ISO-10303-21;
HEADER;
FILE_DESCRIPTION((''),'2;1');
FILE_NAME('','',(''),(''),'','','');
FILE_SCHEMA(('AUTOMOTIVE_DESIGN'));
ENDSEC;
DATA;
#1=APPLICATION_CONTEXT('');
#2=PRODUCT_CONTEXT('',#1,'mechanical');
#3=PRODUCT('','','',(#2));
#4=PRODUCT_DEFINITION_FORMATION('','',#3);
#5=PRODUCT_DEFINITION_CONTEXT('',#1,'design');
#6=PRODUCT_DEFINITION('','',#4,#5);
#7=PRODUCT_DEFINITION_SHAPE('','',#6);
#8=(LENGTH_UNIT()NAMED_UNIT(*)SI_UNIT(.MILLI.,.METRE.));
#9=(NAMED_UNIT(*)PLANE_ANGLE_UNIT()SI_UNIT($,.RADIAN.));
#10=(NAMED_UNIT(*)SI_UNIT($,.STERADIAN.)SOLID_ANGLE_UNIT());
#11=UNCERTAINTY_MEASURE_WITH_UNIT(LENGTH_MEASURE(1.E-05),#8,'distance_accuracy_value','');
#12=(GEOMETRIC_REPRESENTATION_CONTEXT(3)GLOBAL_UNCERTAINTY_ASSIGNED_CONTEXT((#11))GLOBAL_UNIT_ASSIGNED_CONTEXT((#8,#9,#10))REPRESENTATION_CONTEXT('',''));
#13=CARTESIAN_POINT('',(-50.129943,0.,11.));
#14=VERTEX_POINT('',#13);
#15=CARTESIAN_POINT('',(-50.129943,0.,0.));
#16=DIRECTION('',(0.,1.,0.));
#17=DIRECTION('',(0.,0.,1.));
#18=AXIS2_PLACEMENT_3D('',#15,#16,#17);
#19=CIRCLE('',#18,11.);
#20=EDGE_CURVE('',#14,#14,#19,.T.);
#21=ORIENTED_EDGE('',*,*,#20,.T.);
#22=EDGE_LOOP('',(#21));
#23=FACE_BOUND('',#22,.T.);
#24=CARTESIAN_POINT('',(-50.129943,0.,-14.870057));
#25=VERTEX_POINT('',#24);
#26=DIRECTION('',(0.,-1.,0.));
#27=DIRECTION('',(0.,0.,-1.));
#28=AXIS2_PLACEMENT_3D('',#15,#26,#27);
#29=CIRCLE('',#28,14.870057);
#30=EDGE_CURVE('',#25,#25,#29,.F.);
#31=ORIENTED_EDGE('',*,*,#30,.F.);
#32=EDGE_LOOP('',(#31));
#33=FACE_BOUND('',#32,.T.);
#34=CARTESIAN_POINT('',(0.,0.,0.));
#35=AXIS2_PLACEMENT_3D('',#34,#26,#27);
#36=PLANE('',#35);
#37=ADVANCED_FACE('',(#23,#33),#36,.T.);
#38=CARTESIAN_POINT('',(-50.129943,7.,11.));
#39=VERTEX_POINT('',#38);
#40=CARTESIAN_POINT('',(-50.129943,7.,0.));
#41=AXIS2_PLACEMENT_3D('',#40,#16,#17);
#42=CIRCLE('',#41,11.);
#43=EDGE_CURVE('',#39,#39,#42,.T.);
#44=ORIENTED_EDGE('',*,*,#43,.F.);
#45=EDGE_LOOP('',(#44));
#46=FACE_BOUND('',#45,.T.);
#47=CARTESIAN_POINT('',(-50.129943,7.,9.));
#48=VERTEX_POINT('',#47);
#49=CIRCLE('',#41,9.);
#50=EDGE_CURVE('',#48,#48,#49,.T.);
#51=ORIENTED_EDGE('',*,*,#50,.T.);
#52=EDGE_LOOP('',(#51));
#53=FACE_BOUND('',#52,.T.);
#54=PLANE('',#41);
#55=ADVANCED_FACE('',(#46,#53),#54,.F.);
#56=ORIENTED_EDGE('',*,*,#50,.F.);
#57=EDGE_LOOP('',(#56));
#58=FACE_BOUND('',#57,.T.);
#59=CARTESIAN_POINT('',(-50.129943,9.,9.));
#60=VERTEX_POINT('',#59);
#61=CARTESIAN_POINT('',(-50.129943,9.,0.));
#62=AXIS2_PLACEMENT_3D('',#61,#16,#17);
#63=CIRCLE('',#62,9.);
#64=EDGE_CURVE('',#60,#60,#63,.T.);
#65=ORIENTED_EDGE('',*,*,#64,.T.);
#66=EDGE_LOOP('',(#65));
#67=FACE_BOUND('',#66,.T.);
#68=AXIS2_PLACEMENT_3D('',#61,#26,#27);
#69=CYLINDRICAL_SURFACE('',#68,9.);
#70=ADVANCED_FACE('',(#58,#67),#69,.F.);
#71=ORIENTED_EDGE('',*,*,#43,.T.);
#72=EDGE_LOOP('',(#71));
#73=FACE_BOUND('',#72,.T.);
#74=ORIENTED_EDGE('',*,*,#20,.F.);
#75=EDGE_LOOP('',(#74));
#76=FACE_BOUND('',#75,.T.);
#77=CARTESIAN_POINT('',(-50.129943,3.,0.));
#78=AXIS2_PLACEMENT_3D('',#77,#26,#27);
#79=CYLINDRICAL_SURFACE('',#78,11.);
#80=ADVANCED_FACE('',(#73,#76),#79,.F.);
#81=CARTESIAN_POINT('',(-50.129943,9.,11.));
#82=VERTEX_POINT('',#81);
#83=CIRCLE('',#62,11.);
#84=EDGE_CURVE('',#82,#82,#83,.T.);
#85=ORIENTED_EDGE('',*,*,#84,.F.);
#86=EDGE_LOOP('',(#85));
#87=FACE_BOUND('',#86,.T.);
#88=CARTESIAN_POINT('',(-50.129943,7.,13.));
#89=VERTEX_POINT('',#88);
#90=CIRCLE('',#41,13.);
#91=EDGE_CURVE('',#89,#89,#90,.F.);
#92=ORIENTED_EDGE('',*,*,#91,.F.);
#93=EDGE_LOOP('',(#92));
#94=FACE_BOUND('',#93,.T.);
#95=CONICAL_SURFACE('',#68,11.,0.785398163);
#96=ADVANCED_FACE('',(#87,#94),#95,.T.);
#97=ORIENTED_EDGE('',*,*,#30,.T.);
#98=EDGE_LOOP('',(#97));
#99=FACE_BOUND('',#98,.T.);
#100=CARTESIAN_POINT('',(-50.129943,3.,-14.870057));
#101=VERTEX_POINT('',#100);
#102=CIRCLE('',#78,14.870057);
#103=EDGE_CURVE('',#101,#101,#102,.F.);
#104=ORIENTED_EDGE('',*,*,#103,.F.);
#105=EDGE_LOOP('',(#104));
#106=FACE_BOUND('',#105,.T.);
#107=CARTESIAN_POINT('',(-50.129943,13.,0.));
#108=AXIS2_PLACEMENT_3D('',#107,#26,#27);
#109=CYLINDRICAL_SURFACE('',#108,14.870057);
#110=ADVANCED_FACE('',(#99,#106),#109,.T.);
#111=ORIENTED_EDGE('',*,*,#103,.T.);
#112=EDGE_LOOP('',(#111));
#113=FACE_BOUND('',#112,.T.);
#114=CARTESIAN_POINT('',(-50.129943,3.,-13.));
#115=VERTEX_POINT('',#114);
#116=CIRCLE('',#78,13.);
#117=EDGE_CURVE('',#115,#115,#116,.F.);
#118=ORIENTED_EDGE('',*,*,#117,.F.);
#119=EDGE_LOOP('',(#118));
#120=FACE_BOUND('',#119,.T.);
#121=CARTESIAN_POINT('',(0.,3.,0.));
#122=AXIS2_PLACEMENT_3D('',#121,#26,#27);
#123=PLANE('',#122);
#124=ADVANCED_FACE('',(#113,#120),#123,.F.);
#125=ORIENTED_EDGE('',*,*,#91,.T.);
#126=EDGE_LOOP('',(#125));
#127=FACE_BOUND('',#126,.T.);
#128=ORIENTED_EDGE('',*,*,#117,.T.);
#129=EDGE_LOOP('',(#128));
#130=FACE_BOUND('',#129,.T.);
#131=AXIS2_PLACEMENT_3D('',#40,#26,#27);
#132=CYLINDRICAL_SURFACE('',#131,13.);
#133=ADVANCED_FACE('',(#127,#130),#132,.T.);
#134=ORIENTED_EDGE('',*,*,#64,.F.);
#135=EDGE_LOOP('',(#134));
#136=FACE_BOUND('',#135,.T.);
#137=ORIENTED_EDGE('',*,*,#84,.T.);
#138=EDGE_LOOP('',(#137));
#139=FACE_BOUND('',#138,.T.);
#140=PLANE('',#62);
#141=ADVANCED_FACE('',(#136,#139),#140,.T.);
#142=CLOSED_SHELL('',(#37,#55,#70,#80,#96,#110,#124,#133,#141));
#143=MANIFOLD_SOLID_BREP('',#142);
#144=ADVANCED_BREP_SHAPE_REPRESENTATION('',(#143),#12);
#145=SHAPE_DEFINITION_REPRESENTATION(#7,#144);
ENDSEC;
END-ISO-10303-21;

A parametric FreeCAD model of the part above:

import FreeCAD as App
import Part
import Sketcher

V = App.Vector


def edges_at(feature, points):
    """Names of the edges that pass closest to the given points."""
    edges = feature.Shape.Edges
    near = lambda p: min(range(len(edges)), key=lambda i: edges[i].distToShape(Part.Vertex(*p))[0])
    return sorted({f"Edge{near(p) + 1}" for p in points})

doc = App.newDocument("Part")
body = doc.addObject("PartDesign::Body", "Body")

# Sketch on XZ plane
sketch1 = body.newObject("Sketcher::SketchObject", "Sketch")
sketch1.AttachmentSupport = (doc.getObject("XZ_Plane"), [""])
sketch1.MapMode = "FlatFace"
sketch1.addGeometry([
    Part.LineSegment(V(70, -15, 0), V(65, -10, 0)),  # 0
    Part.LineSegment(V(65, -10, 0), V(65, -20, 0)),  # 1
    Part.LineSegment(V(65, -20, 0), V(-65, -20, 0)),  # 2
    Part.LineSegment(V(-65, -20, 0), V(-65, 20, 0)),  # 3
    Part.LineSegment(V(-65, 20, 0), V(65, 20, 0)),  # 4
    Part.LineSegment(V(65, 20, 0), V(65, 10, 0)),  # 5
    Part.LineSegment(V(65, 10, 0), V(70, 15, 0)),  # 6
    Part.LineSegment(V(70, 15, 0), V(70, -15, 0)),  # 7
    Part.LineSegment(V(10, 12.5, 0), V(10, 9.5, 0)),  # 8
    Part.LineSegment(V(10, 9.5, 0), V(40, 9.5, 0)),  # 9
    Part.LineSegment(V(40, 9.5, 0), V(40, 12.5, 0)),  # 10
    Part.LineSegment(V(40, 12.5, 0), V(10, 12.5, 0)),  # 11
    Part.Circle(V(50, 0, 0), V(0, 0, 1), 2),  # 12
    Part.LineSegment(V(10, -9.5, 0), V(10, -12.5, 0)),  # 13
    Part.LineSegment(V(10, -12.5, 0), V(40, -12.5, 0)),  # 14
    Part.LineSegment(V(40, -12.5, 0), V(40, -9.5, 0)),  # 15
    Part.LineSegment(V(40, -9.5, 0), V(10, -9.5, 0)),  # 16
    Part.Circle(V(-13.595128, 0, 0), V(0, 0, 1), 2),  # 17
    Part.Circle(V(-28.595128, 0, 0), V(0, 0, 1), 2),  # 18
    Part.Circle(V(-50.129943, 0, 0), V(0, 0, 1), 11),  # 19
], False)
sketch1.addConstraint([
    Sketcher.Constraint("Coincident", 0, 2, 1, 1),
    Sketcher.Constraint("Coincident", 1, 2, 2, 1),
    Sketcher.Constraint("Coincident", 2, 2, 3, 1),
    Sketcher.Constraint("Coincident", 3, 2, 4, 1),
    Sketcher.Constraint("Coincident", 4, 2, 5, 1),
    Sketcher.Constraint("Coincident", 5, 2, 6, 1),
    Sketcher.Constraint("Coincident", 6, 2, 7, 1),
    Sketcher.Constraint("Coincident", 7, 2, 0, 1),
    Sketcher.Constraint("Coincident", 8, 2, 9, 1),
    Sketcher.Constraint("Coincident", 9, 2, 10, 1),
    Sketcher.Constraint("Coincident", 10, 2, 11, 1),
    Sketcher.Constraint("Coincident", 11, 2, 8, 1),
    Sketcher.Constraint("Coincident", 13, 2, 14, 1),
    Sketcher.Constraint("Coincident", 14, 2, 15, 1),
    Sketcher.Constraint("Coincident", 15, 2, 16, 1),
    Sketcher.Constraint("Coincident", 16, 2, 13, 1),
    Sketcher.Constraint("Vertical", 1),
    Sketcher.Constraint("Horizontal", 2),
    Sketcher.Constraint("Vertical", 3),
    Sketcher.Constraint("Horizontal", 4),
    Sketcher.Constraint("Vertical", 5),
    Sketcher.Constraint("Vertical", 7),
    Sketcher.Constraint("Vertical", 8),
    Sketcher.Constraint("Horizontal", 9),
    Sketcher.Constraint("Vertical", 10),
    Sketcher.Constraint("Horizontal", 11),
    Sketcher.Constraint("Vertical", 13),
    Sketcher.Constraint("Horizontal", 14),
    Sketcher.Constraint("Vertical", 15),
    Sketcher.Constraint("Horizontal", 16),
    Sketcher.Constraint("Equal", 12, 17),
    Sketcher.Constraint("Equal", 17, 18),
    Sketcher.Constraint("Symmetric", 1, 2, 3, 2, -1, 1),
    Sketcher.Constraint("Symmetric", 0, 2, 5, 2, -1),
    Sketcher.Constraint("Symmetric", 11, 2, 13, 2, -1),
    Sketcher.Constraint("Symmetric", 9, 2, 15, 2, -1),
    Sketcher.Constraint("PointOnObject", 12, 3, -1),
    Sketcher.Constraint("PointOnObject", 17, 3, -1),
    Sketcher.Constraint("PointOnObject", 18, 3, -1),
    Sketcher.Constraint("PointOnObject", 19, 3, -1),
    Sketcher.Constraint("Perpendicular", 0, 6),
    Sketcher.Constraint("Equal", 16, 7),
    Sketcher.Constraint("Equal", 0, 6),
    Sketcher.Constraint("Diameter", 12, 4.0),
    Sketcher.Constraint("Diameter", 19, 22.0),
    Sketcher.Constraint("DistanceX", 2, 2, 2, 1, 130.0),
    Sketcher.Constraint("DistanceX", 9, 1, 9, 2, 30.0),
    Sketcher.Constraint("DistanceY", 1, 2, 1, 1, 10.0),
    Sketcher.Constraint("DistanceY", 3, 1, 3, 2, 40.0),
    Sketcher.Constraint("DistanceY", 8, 2, 8, 1, 3.0),
    Sketcher.Constraint("DistanceX", -1, 1, 12, 3, 50.0),
    Sketcher.Constraint("DistanceX", -1, 1, 8, 2, 10.0),
    Sketcher.Constraint("DistanceX", 18, 3, 17, 3, 15.0),
    Sketcher.Constraint("DistanceY", 13, 2, 8, 2, 22.0),
    Sketcher.Constraint("DistanceX", 17, 3, -1, 1, 13.595128),
    Sketcher.Constraint("DistanceX", 19, 3, -1, 1, 50.129943),
])
pad1 = body.newObject("PartDesign::Pad", "Pad")
pad1.Profile = sketch1
pad1.Length = 3
pad1.Reversed = True

# Sketch on XZ plane
sketch2 = body.newObject("Sketcher::SketchObject", "Sketch001")
sketch2.AttachmentSupport = (doc.getObject("XZ_Plane"), [""])
sketch2.MapMode = "FlatFace"
sketch2.AttachmentOffset = App.Placement(V(0, 0, -3), App.Rotation())
sketch2.addGeometry([
    Part.Circle(V(-50.129943, 0, 0), V(0, 0, 1), 13),
    Part.Circle(V(-50.129943, 0, 0), V(0, 0, 1), 11),
], False)
sketch2.addConstraint([
    Sketcher.Constraint("Coincident", 1, 3, 0, 3),
    Sketcher.Constraint("PointOnObject", 0, 3, -1),
    Sketcher.Constraint("Diameter", 0, 26.0),
    Sketcher.Constraint("Diameter", 1, 22.0),
    Sketcher.Constraint("DistanceX", 0, 3, -1, 1, 50.129943),
])
pad2 = body.newObject("PartDesign::Pad", "Pad001")
pad2.Profile = sketch2
pad2.Length = 4
pad2.Reversed = True

# Sketch on XZ plane
sketch3 = body.newObject("Sketcher::SketchObject", "Sketch002")
sketch3.AttachmentSupport = (doc.getObject("XZ_Plane"), [""])
sketch3.MapMode = "FlatFace"
sketch3.AttachmentOffset = App.Placement(V(0, 0, -7), App.Rotation())
sketch3.addGeometry([
    Part.Circle(V(-50.129943, 0, 0), V(0, 0, 1), 13),
    Part.Circle(V(-50.129943, 0, 0), V(0, 0, 1), 9),
], False)
sketch3.addConstraint([
    Sketcher.Constraint("Coincident", 1, 3, 0, 3),
    Sketcher.Constraint("PointOnObject", 0, 3, -1),
    Sketcher.Constraint("Diameter", 0, 26.0),
    Sketcher.Constraint("Diameter", 1, 18.0),
    Sketcher.Constraint("DistanceX", 0, 3, -1, 1, 50.129943),
])
pad3 = body.newObject("PartDesign::Pad", "Pad002")
pad3.Profile = sketch3
pad3.Length = 2
pad3.Reversed = True
doc.recompute()

chamfer = body.newObject("PartDesign::Chamfer", "Chamfer")
chamfer.Base = (pad3, edges_at(pad3, [(-50.13, 9, 13)]))
chamfer.Size = 2
doc.recompute()

chamfer2 = body.newObject("PartDesign::Chamfer", "Chamfer001")
chamfer2.Base = (chamfer, edges_at(chamfer, [(-65, 1.5, 20), (-65, 1.5, -20)]))
chamfer2.Size = 10

# Sketch on XZ plane
sketch4 = body.newObject("Sketcher::SketchObject", "Sketch003")
sketch4.AttachmentSupport = (doc.getObject("XZ_Plane"), [""])
sketch4.MapMode = "FlatFace"
sketch4.AttachmentOffset = App.Placement(V(0, 0, -3), App.Rotation())
sketch4.addGeometry([
    Part.LineSegment(V(-80.109, -35.109, 0), V(-80.109, 35.109, 0)),  # 0
    Part.LineSegment(V(-80.109, 35.109, 0), V(85.109, 35.109, 0)),  # 1
    Part.LineSegment(V(85.109, 35.109, 0), V(85.109, -35.109, 0)),  # 2
    Part.LineSegment(V(85.109, -35.109, 0), V(-80.109, -35.109, 0)),  # 3
    Part.Circle(V(-50.129943, 0, 0), V(0, 0, 1), 14.870057),  # 4
], False)
sketch4.addConstraint([
    Sketcher.Constraint("Coincident", 0, 2, 1, 1),
    Sketcher.Constraint("Coincident", 1, 2, 2, 1),
    Sketcher.Constraint("Coincident", 2, 2, 3, 1),
    Sketcher.Constraint("Coincident", 3, 2, 0, 1),
    Sketcher.Constraint("Vertical", 0),
    Sketcher.Constraint("Horizontal", 1),
    Sketcher.Constraint("Vertical", 2),
    Sketcher.Constraint("Horizontal", 3),
    Sketcher.Constraint("PointOnObject", 4, 3, -1),
    Sketcher.Constraint("DistanceX", 1, 1, 1, 2, 165.218),
    Sketcher.Constraint("DistanceY", 0, 1, 0, 2, 70.218),
    Sketcher.Constraint("Diameter", 4, 29.740114),
    Sketcher.Constraint("DistanceX", 0, 2, -1, 1, 80.109),
    Sketcher.Constraint("DistanceY", -1, 1, 0, 2, 35.109),
    Sketcher.Constraint("DistanceX", 4, 3, -1, 1, 50.129943),
])
pocket1 = body.newObject("PartDesign::Pocket", "Pocket")
pocket1.Profile = sketch4
pocket1.Type = "ThroughAll"
pocket1.Midplane = True

doc.recompute()
